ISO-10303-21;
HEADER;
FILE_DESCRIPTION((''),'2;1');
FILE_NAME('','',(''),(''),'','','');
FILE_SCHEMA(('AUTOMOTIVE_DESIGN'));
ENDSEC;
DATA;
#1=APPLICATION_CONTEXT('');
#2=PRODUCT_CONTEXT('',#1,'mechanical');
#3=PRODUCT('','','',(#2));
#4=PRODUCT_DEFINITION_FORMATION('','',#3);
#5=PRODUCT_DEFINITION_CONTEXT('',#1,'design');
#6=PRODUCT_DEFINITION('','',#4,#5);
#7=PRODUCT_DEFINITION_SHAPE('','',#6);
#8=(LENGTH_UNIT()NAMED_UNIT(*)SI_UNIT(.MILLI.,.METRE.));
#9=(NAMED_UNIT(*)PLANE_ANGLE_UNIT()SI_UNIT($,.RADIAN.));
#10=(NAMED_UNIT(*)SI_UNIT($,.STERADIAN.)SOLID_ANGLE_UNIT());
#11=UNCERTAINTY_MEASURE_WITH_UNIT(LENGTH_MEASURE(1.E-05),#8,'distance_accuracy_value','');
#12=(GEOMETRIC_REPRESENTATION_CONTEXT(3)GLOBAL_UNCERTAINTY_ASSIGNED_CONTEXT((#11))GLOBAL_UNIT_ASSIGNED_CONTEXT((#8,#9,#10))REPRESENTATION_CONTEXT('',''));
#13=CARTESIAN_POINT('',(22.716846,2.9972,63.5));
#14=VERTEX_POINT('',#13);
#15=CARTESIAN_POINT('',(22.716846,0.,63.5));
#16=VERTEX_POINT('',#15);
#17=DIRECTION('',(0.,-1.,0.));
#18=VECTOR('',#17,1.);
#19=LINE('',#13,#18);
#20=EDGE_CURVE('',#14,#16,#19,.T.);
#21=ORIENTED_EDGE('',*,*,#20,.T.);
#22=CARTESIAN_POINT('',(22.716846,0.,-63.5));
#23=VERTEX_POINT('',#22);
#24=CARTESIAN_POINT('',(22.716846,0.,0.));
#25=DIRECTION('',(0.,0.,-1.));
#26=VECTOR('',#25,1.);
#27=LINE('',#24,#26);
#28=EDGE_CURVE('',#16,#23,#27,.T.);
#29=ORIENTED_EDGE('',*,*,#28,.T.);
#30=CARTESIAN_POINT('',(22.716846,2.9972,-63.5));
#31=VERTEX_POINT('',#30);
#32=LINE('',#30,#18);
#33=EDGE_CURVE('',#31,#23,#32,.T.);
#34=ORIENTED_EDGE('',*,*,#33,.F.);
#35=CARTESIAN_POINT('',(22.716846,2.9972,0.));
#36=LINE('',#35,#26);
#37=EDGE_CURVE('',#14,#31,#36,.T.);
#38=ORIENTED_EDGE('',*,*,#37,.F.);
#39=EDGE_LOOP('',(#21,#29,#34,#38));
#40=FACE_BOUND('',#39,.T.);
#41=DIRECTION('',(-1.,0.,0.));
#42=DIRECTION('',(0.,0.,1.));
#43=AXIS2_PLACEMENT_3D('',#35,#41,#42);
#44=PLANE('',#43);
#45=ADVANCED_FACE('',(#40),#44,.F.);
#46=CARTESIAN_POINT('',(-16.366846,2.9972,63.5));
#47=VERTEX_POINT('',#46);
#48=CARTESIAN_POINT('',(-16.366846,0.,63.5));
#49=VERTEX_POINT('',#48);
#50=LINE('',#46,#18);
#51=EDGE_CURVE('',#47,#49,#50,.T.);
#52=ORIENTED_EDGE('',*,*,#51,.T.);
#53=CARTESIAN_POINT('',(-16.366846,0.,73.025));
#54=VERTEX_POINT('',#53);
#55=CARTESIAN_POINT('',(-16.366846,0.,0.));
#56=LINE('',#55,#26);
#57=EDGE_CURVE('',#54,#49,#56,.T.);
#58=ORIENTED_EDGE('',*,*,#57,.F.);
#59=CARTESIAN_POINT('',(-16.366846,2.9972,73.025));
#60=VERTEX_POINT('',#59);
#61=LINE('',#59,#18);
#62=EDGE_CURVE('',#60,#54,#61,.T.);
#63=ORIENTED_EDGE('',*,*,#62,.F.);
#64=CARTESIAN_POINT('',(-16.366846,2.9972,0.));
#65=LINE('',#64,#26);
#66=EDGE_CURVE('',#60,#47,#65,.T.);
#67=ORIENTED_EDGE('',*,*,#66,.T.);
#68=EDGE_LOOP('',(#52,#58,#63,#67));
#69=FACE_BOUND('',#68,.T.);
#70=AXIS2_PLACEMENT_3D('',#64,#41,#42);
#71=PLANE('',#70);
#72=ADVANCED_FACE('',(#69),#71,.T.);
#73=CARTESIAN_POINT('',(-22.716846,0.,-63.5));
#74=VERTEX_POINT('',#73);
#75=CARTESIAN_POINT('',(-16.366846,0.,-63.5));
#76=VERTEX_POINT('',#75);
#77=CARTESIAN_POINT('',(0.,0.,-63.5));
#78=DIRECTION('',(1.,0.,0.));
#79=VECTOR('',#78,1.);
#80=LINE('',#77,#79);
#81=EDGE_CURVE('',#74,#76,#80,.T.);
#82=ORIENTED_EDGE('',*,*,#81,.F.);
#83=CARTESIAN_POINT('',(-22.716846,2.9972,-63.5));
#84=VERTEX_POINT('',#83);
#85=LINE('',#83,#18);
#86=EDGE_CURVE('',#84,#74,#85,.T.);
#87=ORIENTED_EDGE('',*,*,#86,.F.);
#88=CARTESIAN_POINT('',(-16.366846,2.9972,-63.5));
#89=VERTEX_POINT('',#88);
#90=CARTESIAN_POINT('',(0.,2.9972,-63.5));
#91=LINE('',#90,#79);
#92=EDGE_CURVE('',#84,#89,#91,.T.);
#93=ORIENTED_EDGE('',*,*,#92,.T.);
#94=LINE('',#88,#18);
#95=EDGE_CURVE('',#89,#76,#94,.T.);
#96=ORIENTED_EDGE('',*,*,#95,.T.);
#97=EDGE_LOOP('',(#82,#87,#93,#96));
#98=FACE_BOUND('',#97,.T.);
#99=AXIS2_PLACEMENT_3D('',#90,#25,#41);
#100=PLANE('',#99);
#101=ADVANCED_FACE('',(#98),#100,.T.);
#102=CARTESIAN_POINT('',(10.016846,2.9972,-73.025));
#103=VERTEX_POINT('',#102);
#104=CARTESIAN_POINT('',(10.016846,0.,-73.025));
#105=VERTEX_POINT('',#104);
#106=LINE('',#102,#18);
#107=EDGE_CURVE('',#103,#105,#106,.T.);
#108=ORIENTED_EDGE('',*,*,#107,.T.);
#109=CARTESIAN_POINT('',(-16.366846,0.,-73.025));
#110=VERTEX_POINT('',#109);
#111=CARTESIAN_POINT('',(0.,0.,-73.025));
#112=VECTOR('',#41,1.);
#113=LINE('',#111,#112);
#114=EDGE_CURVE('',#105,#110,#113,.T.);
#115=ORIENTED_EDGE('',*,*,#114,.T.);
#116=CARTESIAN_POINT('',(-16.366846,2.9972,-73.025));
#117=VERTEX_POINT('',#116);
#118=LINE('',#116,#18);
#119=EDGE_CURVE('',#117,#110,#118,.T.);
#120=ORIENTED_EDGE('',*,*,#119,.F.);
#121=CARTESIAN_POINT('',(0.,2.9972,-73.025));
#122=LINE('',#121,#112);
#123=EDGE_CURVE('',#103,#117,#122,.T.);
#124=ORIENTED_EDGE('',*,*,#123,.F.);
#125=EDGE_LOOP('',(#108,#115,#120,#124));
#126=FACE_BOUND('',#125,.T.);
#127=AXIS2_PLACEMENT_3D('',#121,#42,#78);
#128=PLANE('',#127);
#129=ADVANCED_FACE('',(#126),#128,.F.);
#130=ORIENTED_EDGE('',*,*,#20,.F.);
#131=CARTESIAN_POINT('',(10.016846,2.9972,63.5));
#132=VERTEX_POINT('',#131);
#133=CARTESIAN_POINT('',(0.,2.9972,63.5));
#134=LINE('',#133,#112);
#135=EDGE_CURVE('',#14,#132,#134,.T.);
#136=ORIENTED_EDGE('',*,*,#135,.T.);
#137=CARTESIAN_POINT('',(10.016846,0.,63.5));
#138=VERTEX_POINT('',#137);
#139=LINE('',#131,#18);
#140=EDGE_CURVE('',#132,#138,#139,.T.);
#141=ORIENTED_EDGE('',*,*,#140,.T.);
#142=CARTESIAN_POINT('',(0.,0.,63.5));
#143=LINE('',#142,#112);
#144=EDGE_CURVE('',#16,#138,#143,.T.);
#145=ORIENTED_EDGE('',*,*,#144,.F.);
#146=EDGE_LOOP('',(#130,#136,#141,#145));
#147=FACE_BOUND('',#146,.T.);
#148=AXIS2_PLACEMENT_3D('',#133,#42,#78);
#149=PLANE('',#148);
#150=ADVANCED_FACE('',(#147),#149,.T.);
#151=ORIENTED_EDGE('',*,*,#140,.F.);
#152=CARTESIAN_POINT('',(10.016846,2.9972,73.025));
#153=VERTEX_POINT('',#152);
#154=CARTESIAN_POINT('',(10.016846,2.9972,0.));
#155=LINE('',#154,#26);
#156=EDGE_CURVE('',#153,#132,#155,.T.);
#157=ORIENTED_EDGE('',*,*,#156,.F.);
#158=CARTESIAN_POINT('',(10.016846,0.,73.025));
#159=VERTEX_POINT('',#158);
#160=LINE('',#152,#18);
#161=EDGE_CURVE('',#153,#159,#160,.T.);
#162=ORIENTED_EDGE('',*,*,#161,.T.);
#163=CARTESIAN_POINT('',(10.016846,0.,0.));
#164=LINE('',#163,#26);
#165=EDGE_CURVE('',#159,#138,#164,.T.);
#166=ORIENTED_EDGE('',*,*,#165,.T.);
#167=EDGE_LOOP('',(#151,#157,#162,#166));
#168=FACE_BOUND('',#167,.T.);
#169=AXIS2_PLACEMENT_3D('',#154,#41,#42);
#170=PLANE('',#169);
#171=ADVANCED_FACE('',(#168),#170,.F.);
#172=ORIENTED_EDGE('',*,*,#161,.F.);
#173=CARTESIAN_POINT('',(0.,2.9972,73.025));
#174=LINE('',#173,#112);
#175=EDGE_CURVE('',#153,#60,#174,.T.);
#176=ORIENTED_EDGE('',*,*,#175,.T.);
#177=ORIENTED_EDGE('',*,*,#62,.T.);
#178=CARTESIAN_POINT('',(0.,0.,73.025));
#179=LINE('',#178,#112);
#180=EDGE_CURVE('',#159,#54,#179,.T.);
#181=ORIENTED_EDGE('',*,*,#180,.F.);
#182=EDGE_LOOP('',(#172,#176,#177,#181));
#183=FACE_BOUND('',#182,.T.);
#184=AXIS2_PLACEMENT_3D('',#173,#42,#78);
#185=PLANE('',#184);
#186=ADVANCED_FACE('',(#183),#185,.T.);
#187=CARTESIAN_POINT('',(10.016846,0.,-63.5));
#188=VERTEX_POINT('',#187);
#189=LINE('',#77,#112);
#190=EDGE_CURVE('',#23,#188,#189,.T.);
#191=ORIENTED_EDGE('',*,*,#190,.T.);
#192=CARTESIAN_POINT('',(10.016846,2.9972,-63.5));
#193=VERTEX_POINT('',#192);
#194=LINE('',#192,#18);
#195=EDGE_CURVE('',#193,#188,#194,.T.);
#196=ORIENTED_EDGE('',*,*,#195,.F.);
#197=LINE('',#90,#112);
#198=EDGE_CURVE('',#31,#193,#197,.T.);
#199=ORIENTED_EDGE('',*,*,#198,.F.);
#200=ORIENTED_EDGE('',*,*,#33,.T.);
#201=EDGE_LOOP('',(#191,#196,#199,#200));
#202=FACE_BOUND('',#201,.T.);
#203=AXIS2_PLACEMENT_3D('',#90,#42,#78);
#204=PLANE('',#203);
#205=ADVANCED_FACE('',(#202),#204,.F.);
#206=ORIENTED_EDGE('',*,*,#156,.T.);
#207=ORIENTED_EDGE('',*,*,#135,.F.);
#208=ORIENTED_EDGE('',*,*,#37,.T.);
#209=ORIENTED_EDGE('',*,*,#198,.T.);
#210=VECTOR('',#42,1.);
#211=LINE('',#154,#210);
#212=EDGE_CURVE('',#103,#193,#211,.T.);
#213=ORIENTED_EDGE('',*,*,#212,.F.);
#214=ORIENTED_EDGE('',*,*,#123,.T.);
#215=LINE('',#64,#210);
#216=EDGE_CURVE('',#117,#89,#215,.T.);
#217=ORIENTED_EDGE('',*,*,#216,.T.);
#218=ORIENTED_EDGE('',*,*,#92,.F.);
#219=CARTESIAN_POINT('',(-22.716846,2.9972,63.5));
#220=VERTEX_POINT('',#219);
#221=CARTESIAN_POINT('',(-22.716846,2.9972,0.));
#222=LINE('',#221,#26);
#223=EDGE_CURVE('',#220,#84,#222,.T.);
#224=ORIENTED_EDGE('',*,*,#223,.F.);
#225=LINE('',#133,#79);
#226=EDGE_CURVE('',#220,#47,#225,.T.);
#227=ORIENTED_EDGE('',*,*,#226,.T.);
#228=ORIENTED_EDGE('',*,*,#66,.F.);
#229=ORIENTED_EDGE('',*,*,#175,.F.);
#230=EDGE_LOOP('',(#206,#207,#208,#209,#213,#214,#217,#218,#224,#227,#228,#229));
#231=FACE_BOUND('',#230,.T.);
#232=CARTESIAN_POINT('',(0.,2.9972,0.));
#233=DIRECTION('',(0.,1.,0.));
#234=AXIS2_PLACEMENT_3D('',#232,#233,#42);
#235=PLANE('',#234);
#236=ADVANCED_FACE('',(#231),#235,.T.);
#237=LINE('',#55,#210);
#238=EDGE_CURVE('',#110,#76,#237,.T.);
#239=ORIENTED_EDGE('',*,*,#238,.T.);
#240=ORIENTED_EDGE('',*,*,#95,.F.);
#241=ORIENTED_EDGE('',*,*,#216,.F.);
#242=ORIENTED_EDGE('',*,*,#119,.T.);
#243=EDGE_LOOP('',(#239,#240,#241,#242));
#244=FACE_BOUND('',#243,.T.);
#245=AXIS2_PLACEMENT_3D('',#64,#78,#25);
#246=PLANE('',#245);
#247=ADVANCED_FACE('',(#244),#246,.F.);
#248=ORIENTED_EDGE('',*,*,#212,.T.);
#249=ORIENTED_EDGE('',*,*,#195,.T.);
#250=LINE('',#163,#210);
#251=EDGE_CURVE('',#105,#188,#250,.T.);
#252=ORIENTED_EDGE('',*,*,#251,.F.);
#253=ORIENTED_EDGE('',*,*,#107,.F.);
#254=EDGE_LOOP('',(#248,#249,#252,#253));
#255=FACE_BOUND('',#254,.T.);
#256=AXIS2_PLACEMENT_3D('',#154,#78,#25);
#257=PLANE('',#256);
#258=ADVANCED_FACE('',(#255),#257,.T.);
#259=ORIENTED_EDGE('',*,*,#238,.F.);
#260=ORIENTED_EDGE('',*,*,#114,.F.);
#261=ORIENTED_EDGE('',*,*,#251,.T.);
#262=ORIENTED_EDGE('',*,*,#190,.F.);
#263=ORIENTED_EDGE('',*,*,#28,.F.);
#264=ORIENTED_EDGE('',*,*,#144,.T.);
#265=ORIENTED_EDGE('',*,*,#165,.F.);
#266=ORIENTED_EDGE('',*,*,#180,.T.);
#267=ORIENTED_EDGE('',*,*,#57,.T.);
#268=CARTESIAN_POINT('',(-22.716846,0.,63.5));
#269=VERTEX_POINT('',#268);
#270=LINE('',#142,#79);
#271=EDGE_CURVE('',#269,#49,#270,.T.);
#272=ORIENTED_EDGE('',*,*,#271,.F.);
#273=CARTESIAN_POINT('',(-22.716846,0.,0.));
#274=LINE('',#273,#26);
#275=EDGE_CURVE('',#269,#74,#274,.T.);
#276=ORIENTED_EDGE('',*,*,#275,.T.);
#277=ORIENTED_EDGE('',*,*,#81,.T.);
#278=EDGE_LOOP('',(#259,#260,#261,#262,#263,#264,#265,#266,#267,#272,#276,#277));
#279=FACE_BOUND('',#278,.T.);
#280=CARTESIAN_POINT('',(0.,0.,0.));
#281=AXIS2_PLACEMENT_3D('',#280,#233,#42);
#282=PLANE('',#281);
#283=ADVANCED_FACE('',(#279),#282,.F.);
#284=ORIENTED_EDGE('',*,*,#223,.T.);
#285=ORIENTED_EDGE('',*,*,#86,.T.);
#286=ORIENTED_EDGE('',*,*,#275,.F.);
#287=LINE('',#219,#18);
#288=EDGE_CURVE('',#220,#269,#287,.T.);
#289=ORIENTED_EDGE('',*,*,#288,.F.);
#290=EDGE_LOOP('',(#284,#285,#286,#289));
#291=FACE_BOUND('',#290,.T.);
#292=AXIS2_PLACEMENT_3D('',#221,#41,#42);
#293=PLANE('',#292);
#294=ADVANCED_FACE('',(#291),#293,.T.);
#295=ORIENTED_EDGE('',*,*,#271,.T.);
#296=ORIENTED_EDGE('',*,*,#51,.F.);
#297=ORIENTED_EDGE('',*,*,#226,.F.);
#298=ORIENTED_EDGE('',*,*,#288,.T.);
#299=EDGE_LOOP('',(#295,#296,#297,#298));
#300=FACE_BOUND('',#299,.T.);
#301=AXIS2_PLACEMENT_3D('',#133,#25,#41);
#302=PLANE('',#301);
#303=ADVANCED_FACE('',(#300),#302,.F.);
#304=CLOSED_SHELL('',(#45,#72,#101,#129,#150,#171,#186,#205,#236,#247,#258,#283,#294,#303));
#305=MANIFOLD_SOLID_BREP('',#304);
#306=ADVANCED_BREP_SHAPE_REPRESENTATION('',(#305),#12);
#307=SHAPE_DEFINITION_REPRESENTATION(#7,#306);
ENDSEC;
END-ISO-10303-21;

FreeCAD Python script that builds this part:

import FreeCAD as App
import Part
import Sketcher

V = App.Vector
Q = App.Units.Quantity


def add_polygon(sketch, points):
    """Adds a closed chain of lines whose ends are joined by coincident constraints."""
    first, n = sketch.GeometryCount, len(points)
    for a, b in zip(points, points[1:] + points[:1]):
        sketch.addGeometry(Part.LineSegment(App.Vector(*a, 0), App.Vector(*b, 0)), False)
    for i in range(n):
        sketch.addConstraint(Sketcher.Constraint("Coincident", first + i, 2, first + (i + 1) % n, 1))

doc = App.newDocument("Part")
body = doc.addObject("PartDesign::Body", "Body")

sketch1 = doc.addObject("Sketcher::SketchObject", "Sketch")
body.addObject(sketch1)
sketch1.AttachmentSupport = (doc.XZ_Plane, [""])
sketch1.MapMode = "FlatFace"
add_polygon(sketch1, [(-16, 73), (10, 73), (10, 64), (23, 64), (23, -64), (10, -64), (10, -73), (-16, -73), (-16, -64), (-23, -64), (-23, 64), (-16, 64)])
sketch1.addConstraint([
    Sketcher.Constraint("Horizontal", 0),
    Sketcher.Constraint("Vertical", 1),
    Sketcher.Constraint("Horizontal", 2),
    Sketcher.Constraint("Vertical", 3),
    Sketcher.Constraint("Horizontal", 4),
    Sketcher.Constraint("Vertical", 5),
    Sketcher.Constraint("Horizontal", 6),
    Sketcher.Constraint("Vertical", 7),
    Sketcher.Constraint("Horizontal", 8),
    Sketcher.Constraint("Vertical", 9),
    Sketcher.Constraint("Horizontal", 10),
    Sketcher.Constraint("Vertical", 11),
    Sketcher.Constraint("Symmetric", 2, 2, 8, 2, -1, 1),
    Sketcher.Constraint("Symmetric", 1, 2, 4, 2, -1),
    Sketcher.Constraint("Symmetric", 7, 2, 10, 2, -1),
    Sketcher.Constraint("Equal", 1, 5),
    Sketcher.Constraint("DistanceY", 3, 2, 3, 1, Q("5 in")),
    Sketcher.Constraint("DistanceX", 2, 1, 2, 2, Q("0.5 in")),
    Sketcher.Constraint("DistanceX", 8, 2, 8, 1, Q("0.25 in")),
    Sketcher.Constraint("DistanceY", 1, 2, 1, 1, Q("0.375 in")),
    Sketcher.Constraint("DistanceX", 0, 1, 0, 2, 26.383691),
])
pad1 = doc.addObject("PartDesign::Pad", "Pad")
body.addObject(pad1)
pad1.Profile = sketch1
pad1.Length = Q("0.118 in")
pad1.Reversed = True

doc.recompute()
